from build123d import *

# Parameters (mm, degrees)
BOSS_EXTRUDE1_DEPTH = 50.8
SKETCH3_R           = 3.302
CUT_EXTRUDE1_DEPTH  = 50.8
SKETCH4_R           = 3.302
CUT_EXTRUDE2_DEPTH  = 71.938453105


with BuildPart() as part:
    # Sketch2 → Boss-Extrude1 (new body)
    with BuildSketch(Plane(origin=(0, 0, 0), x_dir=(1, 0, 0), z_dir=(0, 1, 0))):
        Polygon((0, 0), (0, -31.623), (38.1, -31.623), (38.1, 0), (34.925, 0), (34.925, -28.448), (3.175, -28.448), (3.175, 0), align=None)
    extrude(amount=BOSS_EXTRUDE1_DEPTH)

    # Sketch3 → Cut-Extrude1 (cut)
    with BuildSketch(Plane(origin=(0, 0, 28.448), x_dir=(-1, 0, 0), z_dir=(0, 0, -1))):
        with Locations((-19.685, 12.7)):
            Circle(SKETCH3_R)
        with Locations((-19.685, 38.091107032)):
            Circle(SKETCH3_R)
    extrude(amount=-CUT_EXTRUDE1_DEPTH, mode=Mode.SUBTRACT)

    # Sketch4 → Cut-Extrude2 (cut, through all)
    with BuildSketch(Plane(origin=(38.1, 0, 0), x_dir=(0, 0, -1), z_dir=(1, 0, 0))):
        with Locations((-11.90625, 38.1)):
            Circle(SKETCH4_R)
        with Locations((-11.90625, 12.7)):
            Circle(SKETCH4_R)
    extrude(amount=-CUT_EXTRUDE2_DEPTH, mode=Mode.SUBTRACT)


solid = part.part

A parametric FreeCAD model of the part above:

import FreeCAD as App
import Part
import Sketcher
Q = App.Units.Quantity


def add_polygon(sketch, points):
    """Adds a closed chain of lines whose ends are joined by coincident constraints."""
    first, n = sketch.GeometryCount, len(points)
    for a, b in zip(points, points[1:] + points[:1]):
        sketch.addGeometry(Part.LineSegment(App.Vector(*a, 0), App.Vector(*b, 0)), False)
    for i in range(n):
        sketch.addConstraint(Sketcher.Constraint("Coincident", first + i, 2, first + (i + 1) % n, 1))

doc = App.newDocument("Part")
body = doc.addObject("PartDesign::Body", "Body")

# Sketch on XZ plane
sketch1 = body.newObject("Sketcher::SketchObject", "Sketch")
sketch1.AttachmentSupport = (doc.getObject("XZ_Plane"), [""])
sketch1.MapMode = "FlatFace"
add_polygon(sketch1, [(0, 0), (0, 31.6), (38.1, 31.6), (38.1, 0), (34.9, 0), (34.9, 28.4), (3.2, 28.4), (3.2, 0)])  # lines 0-7
sketch1.addConstraint([
    Sketcher.Constraint("Vertical", 0),
    Sketcher.Constraint("Horizontal", 1),
    Sketcher.Constraint("Vertical", 2),
    Sketcher.Constraint("Horizontal", 3),
    Sketcher.Constraint("Vertical", 4),
    Sketcher.Constraint("Horizontal", 5),
    Sketcher.Constraint("Vertical", 6),
    Sketcher.Constraint("Horizontal", 7),
    Sketcher.Constraint("Coincident", 7, 2, -1, 1),
    Sketcher.Constraint("PointOnObject", 2, 2, -1),
    Sketcher.Constraint("Equal", 3, 7),
    Sketcher.Constraint("DistanceX", 1, 1, 1, 2, Q("1.5 in")),
    Sketcher.Constraint("DistanceX", 5, 2, 5, 1, Q("1.25 in")),
    Sketcher.Constraint("DistanceY", 4, 1, 4, 2, Q("1.12 in")),
    Sketcher.Constraint("DistanceY", 0, 1, 0, 2, Q("1.245 in")),
])
pad1 = body.newObject("PartDesign::Pad", "Pad")
pad1.Profile = sketch1
pad1.Length = Q("2 in")
pad1.Reversed = True

# Sketch on XY plane
sketch2 = body.newObject("Sketcher::SketchObject", "Sketch001")
sketch2.AttachmentSupport = (doc.getObject("XY_Plane"), [""])
sketch2.MapMode = "FlatFace"
sketch2.AttachmentOffset = App.Placement(App.Vector(0, 0, 1.12 * 25.4), App.Rotation())
sketch2.addGeometry([
    Part.Circle(App.Vector(19.7, 12.7, 0), App.Vector(0, 0, 1), 3.3),
    Part.Circle(App.Vector(19.7, 38.1, 0), App.Vector(0, 0, 1), 3.3),
], False)
sketch2.addConstraint([
    Sketcher.Constraint("Equal", 0, 1),
    Sketcher.Constraint("Vertical", 0, 3, 1, 3),
    Sketcher.Constraint("Diameter", 0, Q("0.26 in")),
    Sketcher.Constraint("DistanceY", -1, 1, 0, 3, Q("0.5 in")),
    Sketcher.Constraint("DistanceX", -1, 1, 0, 3, Q("0.775 in")),
    Sketcher.Constraint("DistanceY", -1, 1, 1, 3, 38.091107),
])
pocket1 = body.newObject("PartDesign::Pocket", "Pocket")
pocket1.Profile = sketch2
pocket1.Length = Q("2 in")
pocket1.Reversed = True

# Sketch on YZ plane
sketch3 = body.newObject("Sketcher::SketchObject", "Sketch002")
sketch3.AttachmentSupport = (doc.getObject("YZ_Plane"), [""])
sketch3.MapMode = "FlatFace"
sketch3.AttachmentOffset = App.Placement(App.Vector(0, 0, 1.5 * 25.4), App.Rotation())
sketch3.addGeometry([
    Part.Circle(App.Vector(38.1, 11.9, 0), App.Vector(0, 0, 1), 3.3),
    Part.Circle(App.Vector(12.7, 11.9, 0), App.Vector(0, 0, 1), 3.3),
], False)
sketch3.addConstraint([
    Sketcher.Constraint("Equal", 0, 1),
    Sketcher.Constraint("Horizontal", 0, 3, 1, 3),
    Sketcher.Constraint("Diameter", 0, Q("0.26 in")),
    Sketcher.Constraint("DistanceX", 1, 3, 0, 3, Q("1 in")),
    Sketcher.Constraint("DistanceX", -1, 1, 0, 3, Q("1.5 in")),
    Sketcher.Constraint("DistanceY", -1, 1, 0, 3, Q("0.46875 in")),
])
pocket2 = body.newObject("PartDesign::Pocket", "Pocket001")
pocket2.Profile = sketch3
pocket2.Type = "ThroughAll"

doc.recompute()
